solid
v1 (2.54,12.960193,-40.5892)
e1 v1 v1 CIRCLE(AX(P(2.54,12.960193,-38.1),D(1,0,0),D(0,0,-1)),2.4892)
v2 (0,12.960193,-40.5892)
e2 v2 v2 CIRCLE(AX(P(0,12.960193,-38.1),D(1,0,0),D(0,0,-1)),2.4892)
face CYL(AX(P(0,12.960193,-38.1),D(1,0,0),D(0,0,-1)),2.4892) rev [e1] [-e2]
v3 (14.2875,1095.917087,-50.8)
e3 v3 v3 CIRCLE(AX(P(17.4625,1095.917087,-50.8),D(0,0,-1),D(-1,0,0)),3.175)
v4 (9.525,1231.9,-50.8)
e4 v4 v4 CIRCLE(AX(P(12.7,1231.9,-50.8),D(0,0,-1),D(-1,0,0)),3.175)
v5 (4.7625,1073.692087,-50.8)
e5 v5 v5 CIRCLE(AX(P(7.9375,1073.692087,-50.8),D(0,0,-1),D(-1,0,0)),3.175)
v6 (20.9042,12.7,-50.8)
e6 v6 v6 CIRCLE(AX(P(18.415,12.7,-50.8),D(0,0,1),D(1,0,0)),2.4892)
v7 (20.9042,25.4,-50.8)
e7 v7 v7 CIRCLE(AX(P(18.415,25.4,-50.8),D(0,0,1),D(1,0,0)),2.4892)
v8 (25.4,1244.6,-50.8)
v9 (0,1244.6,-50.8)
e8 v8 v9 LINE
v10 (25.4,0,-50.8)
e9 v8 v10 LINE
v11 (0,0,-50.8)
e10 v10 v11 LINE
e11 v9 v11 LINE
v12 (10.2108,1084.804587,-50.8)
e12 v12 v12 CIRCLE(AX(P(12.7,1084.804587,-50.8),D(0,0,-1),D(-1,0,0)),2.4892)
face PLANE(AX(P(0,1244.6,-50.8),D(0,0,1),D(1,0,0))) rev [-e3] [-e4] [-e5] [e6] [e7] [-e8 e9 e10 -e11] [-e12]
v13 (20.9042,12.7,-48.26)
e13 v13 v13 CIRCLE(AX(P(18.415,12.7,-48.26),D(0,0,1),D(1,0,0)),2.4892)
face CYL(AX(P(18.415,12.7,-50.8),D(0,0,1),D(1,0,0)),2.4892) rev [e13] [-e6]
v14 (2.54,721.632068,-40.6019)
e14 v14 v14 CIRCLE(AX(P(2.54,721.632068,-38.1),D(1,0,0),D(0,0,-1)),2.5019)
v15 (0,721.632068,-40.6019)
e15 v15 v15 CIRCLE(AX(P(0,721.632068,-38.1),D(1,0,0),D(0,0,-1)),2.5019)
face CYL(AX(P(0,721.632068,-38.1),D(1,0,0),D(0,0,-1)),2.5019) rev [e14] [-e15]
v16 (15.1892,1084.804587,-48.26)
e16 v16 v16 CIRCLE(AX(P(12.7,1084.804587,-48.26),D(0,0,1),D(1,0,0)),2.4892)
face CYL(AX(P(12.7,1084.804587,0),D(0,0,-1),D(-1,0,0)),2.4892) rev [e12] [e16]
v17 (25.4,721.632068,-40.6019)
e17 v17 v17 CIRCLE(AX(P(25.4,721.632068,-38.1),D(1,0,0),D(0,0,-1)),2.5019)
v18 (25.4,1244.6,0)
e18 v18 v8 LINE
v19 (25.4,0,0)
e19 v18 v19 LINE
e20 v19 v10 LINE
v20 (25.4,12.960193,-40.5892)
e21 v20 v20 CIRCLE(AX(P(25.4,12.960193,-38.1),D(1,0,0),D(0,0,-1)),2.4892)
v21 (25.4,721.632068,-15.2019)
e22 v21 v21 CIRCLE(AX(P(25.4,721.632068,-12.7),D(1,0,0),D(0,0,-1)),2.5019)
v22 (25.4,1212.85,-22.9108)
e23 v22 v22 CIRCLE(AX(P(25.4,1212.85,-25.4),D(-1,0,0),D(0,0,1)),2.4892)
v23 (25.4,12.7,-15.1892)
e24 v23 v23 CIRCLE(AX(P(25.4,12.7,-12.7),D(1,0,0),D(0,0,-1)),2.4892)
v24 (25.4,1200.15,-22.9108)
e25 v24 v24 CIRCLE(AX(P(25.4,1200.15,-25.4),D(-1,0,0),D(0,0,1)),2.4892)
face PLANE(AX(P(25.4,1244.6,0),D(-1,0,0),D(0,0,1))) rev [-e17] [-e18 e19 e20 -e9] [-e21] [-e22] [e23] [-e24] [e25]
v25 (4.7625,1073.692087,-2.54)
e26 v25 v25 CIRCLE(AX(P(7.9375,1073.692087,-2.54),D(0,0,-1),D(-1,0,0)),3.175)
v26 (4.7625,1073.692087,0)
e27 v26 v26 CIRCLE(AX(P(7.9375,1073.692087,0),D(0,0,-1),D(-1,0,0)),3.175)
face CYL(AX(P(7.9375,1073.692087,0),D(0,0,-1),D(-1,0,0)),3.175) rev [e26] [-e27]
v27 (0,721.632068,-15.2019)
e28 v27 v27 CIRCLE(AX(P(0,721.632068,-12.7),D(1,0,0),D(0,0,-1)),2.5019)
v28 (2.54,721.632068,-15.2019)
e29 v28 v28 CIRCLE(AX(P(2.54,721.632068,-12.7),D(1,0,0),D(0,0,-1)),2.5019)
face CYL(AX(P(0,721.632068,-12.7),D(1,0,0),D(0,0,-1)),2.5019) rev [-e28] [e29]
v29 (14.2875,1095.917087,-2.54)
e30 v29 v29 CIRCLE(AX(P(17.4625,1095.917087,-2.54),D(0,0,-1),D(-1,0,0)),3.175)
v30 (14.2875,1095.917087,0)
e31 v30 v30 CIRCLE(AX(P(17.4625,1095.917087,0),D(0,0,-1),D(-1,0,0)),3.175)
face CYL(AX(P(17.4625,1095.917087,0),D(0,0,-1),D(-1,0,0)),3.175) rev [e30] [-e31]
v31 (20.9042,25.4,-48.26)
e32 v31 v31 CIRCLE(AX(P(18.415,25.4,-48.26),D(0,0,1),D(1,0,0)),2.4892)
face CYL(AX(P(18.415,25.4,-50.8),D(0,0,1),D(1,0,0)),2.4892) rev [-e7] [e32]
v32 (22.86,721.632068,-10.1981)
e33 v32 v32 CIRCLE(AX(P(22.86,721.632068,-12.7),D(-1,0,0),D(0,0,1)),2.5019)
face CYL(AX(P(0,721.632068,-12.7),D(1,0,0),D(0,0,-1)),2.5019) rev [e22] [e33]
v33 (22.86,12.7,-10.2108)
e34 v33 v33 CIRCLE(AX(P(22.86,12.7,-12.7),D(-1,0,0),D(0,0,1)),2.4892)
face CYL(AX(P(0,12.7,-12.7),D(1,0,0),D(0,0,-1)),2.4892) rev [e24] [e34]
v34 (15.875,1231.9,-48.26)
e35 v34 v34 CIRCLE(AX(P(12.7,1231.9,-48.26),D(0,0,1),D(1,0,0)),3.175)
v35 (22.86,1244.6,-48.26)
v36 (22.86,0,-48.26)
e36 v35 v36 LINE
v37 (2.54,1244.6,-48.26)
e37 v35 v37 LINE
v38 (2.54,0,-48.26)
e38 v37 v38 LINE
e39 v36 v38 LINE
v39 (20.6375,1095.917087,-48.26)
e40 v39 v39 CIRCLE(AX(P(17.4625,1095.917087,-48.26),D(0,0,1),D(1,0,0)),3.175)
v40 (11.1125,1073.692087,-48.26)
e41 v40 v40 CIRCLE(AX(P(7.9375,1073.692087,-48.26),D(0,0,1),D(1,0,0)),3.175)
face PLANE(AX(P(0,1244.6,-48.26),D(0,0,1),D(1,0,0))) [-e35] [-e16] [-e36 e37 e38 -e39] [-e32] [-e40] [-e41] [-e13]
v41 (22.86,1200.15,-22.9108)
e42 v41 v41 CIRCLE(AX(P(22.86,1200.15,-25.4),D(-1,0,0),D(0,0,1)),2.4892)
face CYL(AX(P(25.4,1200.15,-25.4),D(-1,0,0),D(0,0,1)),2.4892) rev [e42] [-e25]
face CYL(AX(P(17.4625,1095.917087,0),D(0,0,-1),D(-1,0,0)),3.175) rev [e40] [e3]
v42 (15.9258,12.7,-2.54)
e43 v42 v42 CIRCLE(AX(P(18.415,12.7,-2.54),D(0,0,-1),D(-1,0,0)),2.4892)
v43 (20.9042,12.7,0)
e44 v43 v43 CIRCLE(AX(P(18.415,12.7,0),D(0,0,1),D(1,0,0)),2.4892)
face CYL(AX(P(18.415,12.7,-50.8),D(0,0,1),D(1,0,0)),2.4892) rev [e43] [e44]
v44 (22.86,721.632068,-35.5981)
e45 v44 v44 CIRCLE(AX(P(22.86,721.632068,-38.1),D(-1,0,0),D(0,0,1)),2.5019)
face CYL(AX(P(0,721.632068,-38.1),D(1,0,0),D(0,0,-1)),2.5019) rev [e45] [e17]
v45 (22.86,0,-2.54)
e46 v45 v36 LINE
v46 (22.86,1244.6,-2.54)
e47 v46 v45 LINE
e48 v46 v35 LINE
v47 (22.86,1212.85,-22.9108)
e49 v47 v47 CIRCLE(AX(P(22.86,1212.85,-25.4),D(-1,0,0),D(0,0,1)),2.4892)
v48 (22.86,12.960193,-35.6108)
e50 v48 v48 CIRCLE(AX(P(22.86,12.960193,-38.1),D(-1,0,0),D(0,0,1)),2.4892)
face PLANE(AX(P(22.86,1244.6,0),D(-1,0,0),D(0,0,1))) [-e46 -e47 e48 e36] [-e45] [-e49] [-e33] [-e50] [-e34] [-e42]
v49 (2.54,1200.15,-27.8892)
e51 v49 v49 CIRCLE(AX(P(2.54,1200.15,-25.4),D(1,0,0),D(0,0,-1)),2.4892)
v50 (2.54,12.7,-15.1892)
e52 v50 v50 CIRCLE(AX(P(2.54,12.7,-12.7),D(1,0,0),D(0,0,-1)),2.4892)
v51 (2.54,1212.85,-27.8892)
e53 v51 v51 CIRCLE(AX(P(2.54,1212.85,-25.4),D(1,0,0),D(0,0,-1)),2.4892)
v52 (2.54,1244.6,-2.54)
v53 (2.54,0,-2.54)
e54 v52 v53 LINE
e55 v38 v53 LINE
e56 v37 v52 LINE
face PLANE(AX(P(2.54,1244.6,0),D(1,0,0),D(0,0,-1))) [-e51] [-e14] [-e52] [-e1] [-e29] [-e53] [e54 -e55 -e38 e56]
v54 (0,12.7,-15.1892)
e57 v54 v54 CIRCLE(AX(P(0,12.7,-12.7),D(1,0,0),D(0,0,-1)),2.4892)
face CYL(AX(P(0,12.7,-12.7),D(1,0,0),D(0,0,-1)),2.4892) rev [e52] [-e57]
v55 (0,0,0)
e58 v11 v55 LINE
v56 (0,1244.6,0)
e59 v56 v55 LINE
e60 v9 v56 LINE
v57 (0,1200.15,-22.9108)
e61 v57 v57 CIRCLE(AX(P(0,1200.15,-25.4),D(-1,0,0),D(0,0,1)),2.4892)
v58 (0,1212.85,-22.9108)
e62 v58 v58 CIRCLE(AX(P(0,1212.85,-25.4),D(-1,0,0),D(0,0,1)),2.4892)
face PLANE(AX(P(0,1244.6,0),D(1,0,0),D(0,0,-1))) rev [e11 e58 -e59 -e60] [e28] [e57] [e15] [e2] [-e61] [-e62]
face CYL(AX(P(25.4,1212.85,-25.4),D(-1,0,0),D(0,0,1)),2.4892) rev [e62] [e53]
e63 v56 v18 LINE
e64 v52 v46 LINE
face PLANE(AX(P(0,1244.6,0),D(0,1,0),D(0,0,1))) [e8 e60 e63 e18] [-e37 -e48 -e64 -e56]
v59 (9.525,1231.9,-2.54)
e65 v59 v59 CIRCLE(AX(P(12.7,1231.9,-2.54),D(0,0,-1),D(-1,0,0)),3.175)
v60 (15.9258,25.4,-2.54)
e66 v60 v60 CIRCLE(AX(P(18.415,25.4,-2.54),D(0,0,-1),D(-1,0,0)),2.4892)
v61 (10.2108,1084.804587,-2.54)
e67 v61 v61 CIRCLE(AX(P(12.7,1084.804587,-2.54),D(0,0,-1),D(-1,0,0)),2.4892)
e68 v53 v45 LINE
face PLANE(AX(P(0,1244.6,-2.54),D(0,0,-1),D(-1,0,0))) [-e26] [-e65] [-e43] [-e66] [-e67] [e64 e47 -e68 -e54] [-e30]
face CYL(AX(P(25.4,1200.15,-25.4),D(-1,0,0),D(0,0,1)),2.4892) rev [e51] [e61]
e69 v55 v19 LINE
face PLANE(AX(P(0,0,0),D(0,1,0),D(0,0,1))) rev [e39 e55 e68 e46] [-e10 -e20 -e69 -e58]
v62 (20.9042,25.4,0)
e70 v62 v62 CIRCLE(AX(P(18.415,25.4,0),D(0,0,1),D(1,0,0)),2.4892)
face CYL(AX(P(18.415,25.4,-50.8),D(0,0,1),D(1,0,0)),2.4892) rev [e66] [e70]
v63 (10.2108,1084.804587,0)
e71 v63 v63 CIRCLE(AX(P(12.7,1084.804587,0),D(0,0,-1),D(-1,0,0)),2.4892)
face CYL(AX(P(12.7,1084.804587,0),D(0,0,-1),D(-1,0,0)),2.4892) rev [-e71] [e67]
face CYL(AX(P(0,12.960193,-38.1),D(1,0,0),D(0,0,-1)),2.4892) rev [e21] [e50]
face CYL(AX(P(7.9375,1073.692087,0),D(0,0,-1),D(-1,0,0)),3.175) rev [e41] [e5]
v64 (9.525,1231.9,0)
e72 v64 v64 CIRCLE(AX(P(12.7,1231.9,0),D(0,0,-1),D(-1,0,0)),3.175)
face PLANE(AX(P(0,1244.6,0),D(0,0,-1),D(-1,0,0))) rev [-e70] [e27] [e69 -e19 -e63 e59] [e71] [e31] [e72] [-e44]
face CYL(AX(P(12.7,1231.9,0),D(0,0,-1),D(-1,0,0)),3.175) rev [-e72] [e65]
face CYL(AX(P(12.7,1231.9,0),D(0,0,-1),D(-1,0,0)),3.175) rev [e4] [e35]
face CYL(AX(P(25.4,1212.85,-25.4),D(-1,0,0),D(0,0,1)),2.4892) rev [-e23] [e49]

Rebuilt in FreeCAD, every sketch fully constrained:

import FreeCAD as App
import Part
import Sketcher
from FreeCAD import Vector
Q = App.Units.Quantity


def add_polygon(sketch, points):
    """Adds a closed chain of lines whose ends are joined by coincident constraints."""
    first, n = sketch.GeometryCount, len(points)
    for a, b in zip(points, points[1:] + points[:1]):
        sketch.addGeometry(Part.LineSegment(App.Vector(*a, 0), App.Vector(*b, 0)), False)
    for i in range(n):
        sketch.addConstraint(Sketcher.Constraint("Coincident", first + i, 2, first + (i + 1) % n, 1))

doc = App.newDocument("Part")
body = doc.addObject("PartDesign::Body", "Body")

sketch1 = body.newObject("Sketcher::SketchObject", "Sketch")
sketch1.AttachmentSupport = (doc.getObject("XZ_Plane"), [""])
sketch1.MapMode = "FlatFace"
add_polygon(sketch1, [(0, -50.8), (0, 0), (25.4, 0), (25.4, -50.8)])
add_polygon(sketch1, [(22.86, -2.54), (2.54, -2.54), (2.54, -48.26), (22.86, -48.26)])
sketch1.addConstraint(Sketcher.Constraint("Vertical", 0))
sketch1.addConstraint(Sketcher.Constraint("Horizontal", 1))
sketch1.addConstraint(Sketcher.Constraint("Vertical", 2))
sketch1.addConstraint(Sketcher.Constraint("Horizontal", 3))
sketch1.addConstraint(Sketcher.Constraint("Horizontal", 4))
sketch1.addConstraint(Sketcher.Constraint("Vertical", 5))
sketch1.addConstraint(Sketcher.Constraint("Horizontal", 6))
sketch1.addConstraint(Sketcher.Constraint("Vertical", 7))
sketch1.addConstraint(Sketcher.Constraint("Coincident", 0, 2, -1, 1))
sketch1.addConstraint(Sketcher.Constraint("DistanceX", 1, 1, 1, 2, Q("1 in")))
sketch1.addConstraint(Sketcher.Constraint("DistanceY", 0, 1, 0, 2, Q("2 in")))
sketch1.addConstraint(Sketcher.Constraint("DistanceX", 4, 2, 4, 1, Q("0.8 in")))
sketch1.addConstraint(Sketcher.Constraint("DistanceY", 5, 2, 5, 1, Q("1.8 in")))
sketch1.addConstraint(Sketcher.Constraint("DistanceX", -1, 1, 4, 2, Q("0.1 in")))
sketch1.addConstraint(Sketcher.Constraint("DistanceY", 4, 2, -1, 1, Q("0.1 in")))
pad1 = body.newObject("PartDesign::Pad", "Pad")
pad1.Profile = sketch1
pad1.Length = Q("49 in")
pad1.Reversed = True

sketch2 = body.newObject("Sketcher::SketchObject", "Sketch001")
sketch2.AttachmentSupport = (doc.getObject("YZ_Plane"), [""])
sketch2.MapMode = "FlatFace"
sketch2.AttachmentOffset = App.Placement(Vector(0, 0, 1 * 25.4), App.Rotation())
sketch2.addGeometry(Part.Circle(Vector(12.7, -12.7, 0), Vector(0, 0, 1), 2.4892), False)
sketch2.addGeometry(Part.Circle(Vector(12.960193, -38.1, 0), Vector(0, 0, 1), 2.4892), False)
sketch2.addGeometry(Part.Circle(Vector(721.632068, -12.7, 0), Vector(0, 0, 1), 2.5019), False)
sketch2.addGeometry(Part.Circle(Vector(721.632068, -38.1, 0), Vector(0, 0, 1), 2.5019), False)
sketch2.addConstraint(Sketcher.Constraint("Equal", 0, 1))
sketch2.addConstraint(Sketcher.Constraint("Equal", 2, 3))
sketch2.addConstraint(Sketcher.Constraint("Horizontal", 0, 3, 2, 3))
sketch2.addConstraint(Sketcher.Constraint("Horizontal", 1, 3, 3, 3))
sketch2.addConstraint(Sketcher.Constraint("Vertical", 2, 3, 3, 3))
sketch2.addConstraint(Sketcher.Constraint("Diameter", 0, Q("0.196 in")))
sketch2.addConstraint(Sketcher.Constraint("Diameter", 2, Q("0.197 in")))
sketch2.addConstraint(Sketcher.Constraint("DistanceY", 1, 3, 0, 3, Q("1 in")))
sketch2.addConstraint(Sketcher.Constraint("DistanceX", -1, 1, 0, 3, Q("0.5 in")))
sketch2.addConstraint(Sketcher.Constraint("DistanceY", 0, 3, -1, 1, Q("0.5 in")))
sketch2.addConstraint(Sketcher.Constraint("DistanceX", -1, 1, 2, 3, Q("721.632068 mm")))
sketch2.addConstraint(Sketcher.Constraint("DistanceX", -1, 1, 1, 3, Q("12.960193 mm")))
pocket1 = body.newObject("PartDesign::Pocket", "Pocket")
pocket1.Profile = sketch2
pocket1.Type = "ThroughAll"

sketch3 = body.newObject("Sketcher::SketchObject", "Sketch002")
sketch3.AttachmentSupport = (doc.getObject("YZ_Plane"), [""])
sketch3.MapMode = "FlatFace"
sketch3.addGeometry(Part.Circle(Vector(1200.15, -25.4, 0), Vector(0, 0, 1), 2.4892), False)
sketch3.addGeometry(Part.Circle(Vector(1212.85, -25.4, 0), Vector(0, 0, 1), 2.4892), False)
sketch3.addConstraint(Sketcher.Constraint("Equal", 0, 1))
sketch3.addConstraint(Sketcher.Constraint("Horizontal", 0, 3, 1, 3))
sketch3.addConstraint(Sketcher.Constraint("Diameter", 0, Q("0.196 in")))
sketch3.addConstraint(Sketcher.Constraint("DistanceY", 0, 3, -1, 1, Q("1 in")))
sketch3.addConstraint(Sketcher.Constraint("DistanceX", 0, 3, 1, 3, Q("0.5 in")))
sketch3.addConstraint(Sketcher.Constraint("DistanceX", -1, 1, 0, 3, Q("47.25 in")))
pocket2 = body.newObject("PartDesign::Pocket", "Pocket001")
pocket2.Profile = sketch3
pocket2.Type = "ThroughAll"
pocket2.Reversed = True

sketch4 = body.newObject("Sketcher::SketchObject", "Sketch003")
sketch4.AttachmentSupport = (doc.getObject("XY_Plane"), [""])
sketch4.MapMode = "FlatFace"
sketch4.AttachmentOffset = App.Placement(Vector(0, 0, -2 * 25.4), App.Rotation())
sketch4.addGeometry(Part.Circle(Vector(12.7, 1084.804587, 0), Vector(0, 0, 1), 2.4892), False)
sketch4.addConstraint(Sketcher.Constraint("Diameter", 0, Q("0.196 in")))
sketch4.addConstraint(Sketcher.Constraint("DistanceX", -1, 1, 0, 3, Q("0.5 in")))
sketch4.addConstraint(Sketcher.Constraint("DistanceY", -1, 1, 0, 3, Q("1084.804587 mm")))
pocket3 = body.newObject("PartDesign::Pocket", "Pocket002")
pocket3.Profile = sketch4
pocket3.Type = "ThroughAll"
pocket3.Reversed = True

sketch5 = body.newObject("Sketcher::SketchObject", "Sketch004")
sketch5.AttachmentSupport = (doc.getObject("XY_Plane"), [""])
sketch5.MapMode = "FlatFace"
sketch5.addGeometry(Part.Circle(Vector(18.415, 12.7, 0), Vector(0, 0, 1), 2.4892), False)
sketch5.addGeometry(Part.Circle(Vector(18.415, 25.4, 0), Vector(0, 0, 1), 2.4892), False)
sketch5.addConstraint(Sketcher.Constraint("Equal", 0, 1))
sketch5.addConstraint(Sketcher.Constraint("Vertical", 0, 3, 1, 3))
sketch5.addConstraint(Sketcher.Constraint("Diameter", 0, Q("0.196 in")))
sketch5.addConstraint(Sketcher.Constraint("DistanceY", -1, 1, 1, 3, Q("1 in")))
sketch5.addConstraint(Sketcher.Constraint("DistanceY", -1, 1, 0, 3, Q("0.5 in")))
sketch5.addConstraint(Sketcher.Constraint("DistanceX", -1, 1, 0, 3, Q("0.725 in")))
pocket4 = body.newObject("PartDesign::Pocket", "Pocket003")
pocket4.Profile = sketch5
pocket4.Type = "ThroughAll"

sketch6 = body.newObject("Sketcher::SketchObject", "Sketch005")
sketch6.AttachmentSupport = (doc.getObject("XY_Plane"), [""])
sketch6.MapMode = "FlatFace"
sketch6.AttachmentOffset = App.Placement(Vector(0, 0, -2 * 25.4), App.Rotation())
sketch6.addGeometry(Part.Circle(Vector(12.7, 1231.9, 0), Vector(0, 0, 1), 3.175), False)
sketch6.addConstraint(Sketcher.Constraint("Diameter", 0, Q("0.25 in")))
sketch6.addConstraint(Sketcher.Constraint("DistanceX", -1, 1, 0, 3, Q("0.5 in")))
sketch6.addConstraint(Sketcher.Constraint("DistanceY", -1, 1, 0, 3, Q("48.5 in")))
pocket5 = body.newObject("PartDesign::Pocket", "Pocket004")
pocket5.Profile = sketch6
pocket5.Type = "ThroughAll"
pocket5.Reversed = True

sketch7 = body.newObject("Sketcher::SketchObject", "Sketch006")
sketch7.AttachmentSupport = (doc.getObject("XY_Plane"), [""])
sketch7.MapMode = "FlatFace"
sketch7.AttachmentOffset = App.Placement(Vector(0, 0, -2 * 25.4), App.Rotation())
sketch7.addGeometry(Part.Circle(Vector(17.4625, 1095.917087, 0), Vector(0, 0, 1), 3.175), False)
sketch7.addGeometry(Part.Circle(Vector(7.9375, 1073.692087, 0), Vector(0, 0, 1), 3.175), False)
sketch7.addConstraint(Sketcher.Constraint("Equal", 0, 1))
sketch7.addConstraint(Sketcher.Constraint("Diameter", 0, Q("0.25 in")))
sketch7.addConstraint(Sketcher.Constraint("DistanceX", -1, 1, 0, 3, Q("0.6875 in")))
sketch7.addConstraint(Sketcher.Constraint("DistanceX", -1, 1, 1, 3, Q("0.3125 in")))
sketch7.addConstraint(Sketcher.Constraint("DistanceY", 1, 3, 0, 3, Q("0.875 in")))
sketch7.addConstraint(Sketcher.Constraint("DistanceY", -1, 1, 0, 3, Q("1095.917087 mm")))
pocket6 = body.newObject("PartDesign::Pocket", "Pocket005")
pocket6.Profile = sketch7
pocket6.Type = "ThroughAll"
pocket6.Reversed = True

doc.recompute()
